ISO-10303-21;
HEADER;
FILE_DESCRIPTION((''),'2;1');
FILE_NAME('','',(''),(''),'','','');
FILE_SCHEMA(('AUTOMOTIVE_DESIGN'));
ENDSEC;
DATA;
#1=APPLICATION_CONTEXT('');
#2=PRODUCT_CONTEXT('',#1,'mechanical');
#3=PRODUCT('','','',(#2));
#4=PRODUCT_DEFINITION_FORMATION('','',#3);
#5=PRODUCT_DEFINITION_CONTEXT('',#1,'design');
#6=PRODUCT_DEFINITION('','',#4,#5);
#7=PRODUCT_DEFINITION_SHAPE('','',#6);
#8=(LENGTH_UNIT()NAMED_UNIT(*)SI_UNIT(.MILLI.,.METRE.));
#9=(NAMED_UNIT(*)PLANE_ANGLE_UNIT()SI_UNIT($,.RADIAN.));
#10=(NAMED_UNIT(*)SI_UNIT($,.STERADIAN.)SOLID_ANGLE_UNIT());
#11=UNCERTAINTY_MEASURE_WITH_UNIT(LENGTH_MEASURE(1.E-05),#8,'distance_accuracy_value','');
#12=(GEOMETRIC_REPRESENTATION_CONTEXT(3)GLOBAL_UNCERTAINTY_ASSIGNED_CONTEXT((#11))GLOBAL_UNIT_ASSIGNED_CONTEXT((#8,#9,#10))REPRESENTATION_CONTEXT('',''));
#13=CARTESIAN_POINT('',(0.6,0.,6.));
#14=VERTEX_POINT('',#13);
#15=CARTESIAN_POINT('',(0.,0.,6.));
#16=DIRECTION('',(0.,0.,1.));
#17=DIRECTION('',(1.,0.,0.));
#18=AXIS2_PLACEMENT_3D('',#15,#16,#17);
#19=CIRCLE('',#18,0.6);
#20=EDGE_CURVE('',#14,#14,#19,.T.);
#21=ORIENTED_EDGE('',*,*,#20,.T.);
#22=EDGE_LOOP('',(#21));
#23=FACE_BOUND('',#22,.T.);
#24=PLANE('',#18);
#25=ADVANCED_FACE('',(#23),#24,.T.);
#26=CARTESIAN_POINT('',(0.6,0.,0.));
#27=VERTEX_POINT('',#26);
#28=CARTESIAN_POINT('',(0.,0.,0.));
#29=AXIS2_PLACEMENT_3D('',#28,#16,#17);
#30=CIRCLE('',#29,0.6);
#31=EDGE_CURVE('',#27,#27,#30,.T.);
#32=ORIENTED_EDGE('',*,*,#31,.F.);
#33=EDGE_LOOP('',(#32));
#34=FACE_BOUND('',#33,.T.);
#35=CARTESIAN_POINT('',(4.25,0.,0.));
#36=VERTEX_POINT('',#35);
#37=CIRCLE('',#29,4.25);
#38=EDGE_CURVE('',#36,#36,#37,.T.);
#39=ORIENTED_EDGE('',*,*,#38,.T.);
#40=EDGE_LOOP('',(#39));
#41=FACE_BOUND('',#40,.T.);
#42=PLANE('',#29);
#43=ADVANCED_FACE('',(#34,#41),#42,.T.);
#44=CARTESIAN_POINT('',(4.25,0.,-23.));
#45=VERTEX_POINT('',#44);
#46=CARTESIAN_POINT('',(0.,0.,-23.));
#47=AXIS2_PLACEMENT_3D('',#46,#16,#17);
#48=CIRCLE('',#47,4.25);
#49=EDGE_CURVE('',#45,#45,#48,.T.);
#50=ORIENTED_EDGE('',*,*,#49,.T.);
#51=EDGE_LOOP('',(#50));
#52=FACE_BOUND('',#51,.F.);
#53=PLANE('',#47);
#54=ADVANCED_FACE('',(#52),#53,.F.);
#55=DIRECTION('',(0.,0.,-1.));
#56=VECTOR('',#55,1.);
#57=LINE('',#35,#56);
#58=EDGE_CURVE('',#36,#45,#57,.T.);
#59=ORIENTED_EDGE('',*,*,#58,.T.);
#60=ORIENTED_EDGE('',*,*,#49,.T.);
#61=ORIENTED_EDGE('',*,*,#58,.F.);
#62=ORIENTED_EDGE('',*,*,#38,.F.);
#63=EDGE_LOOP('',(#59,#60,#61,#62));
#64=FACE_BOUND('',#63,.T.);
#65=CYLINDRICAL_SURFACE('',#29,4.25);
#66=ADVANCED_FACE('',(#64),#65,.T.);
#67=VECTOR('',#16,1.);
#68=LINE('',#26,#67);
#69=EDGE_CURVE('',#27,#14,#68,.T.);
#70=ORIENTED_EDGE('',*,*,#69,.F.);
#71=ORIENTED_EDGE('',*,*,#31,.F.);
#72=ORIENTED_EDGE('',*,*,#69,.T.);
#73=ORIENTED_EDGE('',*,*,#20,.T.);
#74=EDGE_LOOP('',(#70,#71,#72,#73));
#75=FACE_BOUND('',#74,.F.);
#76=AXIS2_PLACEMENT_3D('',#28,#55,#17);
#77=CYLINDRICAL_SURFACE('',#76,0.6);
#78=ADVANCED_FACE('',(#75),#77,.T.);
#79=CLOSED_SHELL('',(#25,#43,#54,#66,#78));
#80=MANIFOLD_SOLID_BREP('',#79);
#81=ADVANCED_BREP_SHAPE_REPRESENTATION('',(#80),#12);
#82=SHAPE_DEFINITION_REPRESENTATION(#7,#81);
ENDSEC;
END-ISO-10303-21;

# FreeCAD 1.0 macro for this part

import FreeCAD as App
import Part
import Sketcher
from FreeCAD import Vector
Q = App.Units.Quantity

doc = App.newDocument("Part")
body = doc.addObject("PartDesign::Body", "Body")

sketch1 = body.newObject("Sketcher::SketchObject", "Sketch")
sketch1.AttachmentSupport = (doc.getObject("XY_Plane"), [""])
sketch1.MapMode = "FlatFace"
sketch1.addGeometry(Part.Circle(Vector(0, 0, 0), Vector(0, 0, 1), 4.25), False)
sketch1.addConstraint([
    Sketcher.Constraint("Coincident", 0, 3, -1, 1),
    Sketcher.Constraint("Diameter", 0, Q("8.5 mm")),
])
pad1 = body.newObject("PartDesign::Pad", "Pad")
pad1.Profile = sketch1
pad1.Length = 23
pad1.Reversed = True

sketch2 = body.newObject("Sketcher::SketchObject", "Sketch001")
sketch2.AttachmentSupport = (doc.getObject("XY_Plane"), [""])
sketch2.MapMode = "FlatFace"
sketch2.addGeometry(Part.Circle(Vector(0, 0, 0), Vector(0, 0, 1), 0.6), False)
sketch2.addConstraint([
    Sketcher.Constraint("Coincident", 0, 3, -1, 1),
    Sketcher.Constraint("Diameter", 0, Q("1.2 mm")),
])
pad2 = body.newObject("PartDesign::Pad", "Pad001")
pad2.Profile = sketch2
pad2.Length = 6

doc.recompute()
